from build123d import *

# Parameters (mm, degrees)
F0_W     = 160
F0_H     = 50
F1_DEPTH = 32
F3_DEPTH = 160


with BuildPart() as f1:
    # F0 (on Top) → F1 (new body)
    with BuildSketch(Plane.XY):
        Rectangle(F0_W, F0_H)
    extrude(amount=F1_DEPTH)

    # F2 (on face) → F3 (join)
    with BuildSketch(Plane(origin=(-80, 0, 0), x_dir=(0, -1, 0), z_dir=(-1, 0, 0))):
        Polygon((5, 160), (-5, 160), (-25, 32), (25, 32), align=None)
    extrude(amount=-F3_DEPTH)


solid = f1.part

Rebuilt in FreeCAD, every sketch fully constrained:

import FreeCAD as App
import Part
import Sketcher
Q = App.Units.Quantity


def add_polygon(sketch, points):
    """Adds a closed chain of lines whose ends are joined by coincident constraints."""
    first, n = sketch.GeometryCount, len(points)
    for a, b in zip(points, points[1:] + points[:1]):
        sketch.addGeometry(Part.LineSegment(App.Vector(*a, 0), App.Vector(*b, 0)), False)
    for i in range(n):
        sketch.addConstraint(Sketcher.Constraint("Coincident", first + i, 2, first + (i + 1) % n, 1))

doc = App.newDocument("Part")
params = doc.addObject("Spreadsheet::Sheet", "Params")
for row, (alias, value) in enumerate([
    ("sketch1_width", "160 mm"),
    ("sketch1_height", "50 mm"),
    ("pad1_length", "32 mm"),
    ("sketch2_width", "10 mm"),
    ("sketch2_width2", "50 mm"),
    ("pad2_length", "160 mm"),
], start=1):
    params.set(f"A{row}", alias)
    params.set(f"B{row}", "=" + value)
    params.setAlias(f"B{row}", alias)

body = doc.addObject("PartDesign::Body", "Body")

sketch1 = body.newObject("Sketcher::SketchObject", "Sketch")
sketch1.AttachmentSupport = (doc.getObject("XY_Plane"), [""])
sketch1.MapMode = "FlatFace"
add_polygon(sketch1, [(-80, 25), (-80, -25), (80, -25), (80, 25)])
sketch1.addConstraint(Sketcher.Constraint("Vertical", 0))
sketch1.addConstraint(Sketcher.Constraint("Horizontal", 1))
sketch1.addConstraint(Sketcher.Constraint("Vertical", 2))
sketch1.addConstraint(Sketcher.Constraint("Horizontal", 3))
sketch1.addConstraint(Sketcher.Constraint("Symmetric", 0, 2, 2, 2, -1, 1))
sketch1.addConstraint(Sketcher.Constraint("DistanceX", 1, 1, 1, 2, Q("160 mm")))
sketch1.addConstraint(Sketcher.Constraint("DistanceY", 0, 2, 0, 1, Q("50 mm")))
sketch1.setExpression("Constraints[9]", "Params.sketch1_width")
sketch1.setExpression("Constraints[10]", "Params.sketch1_height")
pad1 = body.newObject("PartDesign::Pad", "Pad")
pad1.Profile = sketch1
pad1.setExpression("Length", "Params.pad1_length")

sketch2 = body.newObject("Sketcher::SketchObject", "Sketch001")
sketch2.AttachmentSupport = (doc.getObject("YZ_Plane"), [""])
sketch2.MapMode = "FlatFace"
sketch2.AttachmentOffset = App.Placement(App.Vector(0, 0, -80), App.Rotation())
add_polygon(sketch2, [(-5, 160), (5, 160), (25, 32), (-25, 32)])
sketch2.addConstraint(Sketcher.Constraint("Horizontal", 0))
sketch2.addConstraint(Sketcher.Constraint("Horizontal", 2))
sketch2.addConstraint(Sketcher.Constraint("Equal", 1, 3))
sketch2.addConstraint(Sketcher.Constraint("DistanceX", 0, 1, 0, 2, Q("10 mm")))
sketch2.addConstraint(Sketcher.Constraint("DistanceX", 2, 2, 2, 1, Q("50 mm")))
sketch2.addConstraint(Sketcher.Constraint("DistanceX", -1, 1, 0, 2, Q("5 mm")))
sketch2.addConstraint(Sketcher.Constraint("DistanceY", -1, 1, 0, 2, Q("160 mm")))
sketch2.addConstraint(Sketcher.Constraint("DistanceY", -1, 1, 1, 2, Q("32 mm")))
sketch2.setExpression("Constraints[7]", "Params.sketch2_width")
sketch2.setExpression("Constraints[8]", "Params.sketch2_width2")
pad2 = body.newObject("PartDesign::Pad", "Pad001")
pad2.Profile = sketch2
pad2.setExpression("Length", "Params.pad2_length")

doc.recompute()
